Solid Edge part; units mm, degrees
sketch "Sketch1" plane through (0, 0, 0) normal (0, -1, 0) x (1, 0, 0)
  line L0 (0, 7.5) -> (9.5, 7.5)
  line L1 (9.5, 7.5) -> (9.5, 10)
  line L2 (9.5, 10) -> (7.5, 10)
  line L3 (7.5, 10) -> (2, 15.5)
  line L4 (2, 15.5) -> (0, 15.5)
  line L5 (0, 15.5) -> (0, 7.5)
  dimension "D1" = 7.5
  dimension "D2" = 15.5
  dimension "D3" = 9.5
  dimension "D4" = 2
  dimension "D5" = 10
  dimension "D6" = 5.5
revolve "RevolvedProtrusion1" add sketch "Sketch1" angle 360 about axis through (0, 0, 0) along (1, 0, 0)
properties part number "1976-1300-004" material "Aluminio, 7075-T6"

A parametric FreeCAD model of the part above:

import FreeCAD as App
import Part
import Sketcher

V = App.Vector
Q = App.Units.Quantity


def add_polygon(sketch, points):
    """Adds a closed chain of lines whose ends are joined by coincident constraints."""
    first, n = sketch.GeometryCount, len(points)
    for a, b in zip(points, points[1:] + points[:1]):
        sketch.addGeometry(Part.LineSegment(App.Vector(*a, 0), App.Vector(*b, 0)), False)
    for i in range(n):
        sketch.addConstraint(Sketcher.Constraint("Coincident", first + i, 2, first + (i + 1) % n, 1))

doc = App.newDocument("Part")
params = doc.addObject("Spreadsheet::Sheet", "Params")
for row, (alias, value) in enumerate([
    ("sketch1_width", "9.5 mm"),
    ("sketch1_width2", "2 mm"),
    ("sketch1_height", "8 mm"),
    ("revolution_angle", "360 deg"),
], start=1):
    params.set(f"A{row}", alias)
    params.set(f"B{row}", "=" + value)
    params.setAlias(f"B{row}", alias)

body = doc.addObject("PartDesign::Body", "Body")

# Sketch on XZ plane
sketch1 = body.newObject("Sketcher::SketchObject", "Sketch")
sketch1.AttachmentSupport = (doc.getObject("XZ_Plane"), [""])
sketch1.MapMode = "FlatFace"
add_polygon(sketch1, [(0, 15.5), (0, 7.5), (9.5, 7.5), (9.5, 10), (7.5, 10), (2, 15.5)])  # lines 0-5
sketch1.addConstraint([
    Sketcher.Constraint("Vertical", 0),
    Sketcher.Constraint("Horizontal", 1),
    Sketcher.Constraint("Vertical", 2),
    Sketcher.Constraint("Horizontal", 3),
    Sketcher.Constraint("Horizontal", 5),
    Sketcher.Constraint("PointOnObject", 0, 2, -2),
    Sketcher.Constraint("Equal", 3, 5),
    Sketcher.Constraint("DistanceX", 1, 1, 1, 2, 9.5),
    Sketcher.Constraint("DistanceX", 3, 2, 3, 1, 2.0),
    Sketcher.Constraint("DistanceY", 0, 2, 0, 1, 8.0),
    Sketcher.Constraint("Angle", 4, Q("135 deg")),
    Sketcher.Constraint("DistanceY", -1, 1, 2, 2, 10.0),
])
sketch1.setExpression("Constraints[13]", "Params.sketch1_width")
sketch1.setExpression("Constraints[14]", "Params.sketch1_width2")
sketch1.setExpression("Constraints[15]", "Params.sketch1_height")
revolution = body.newObject("PartDesign::Revolution", "Revolution")
revolution.Profile = sketch1
revolution.ReferenceAxis = (sketch1, ["H_Axis"])
revolution.setExpression("Angle", "Params.revolution_angle")

doc.recompute()
